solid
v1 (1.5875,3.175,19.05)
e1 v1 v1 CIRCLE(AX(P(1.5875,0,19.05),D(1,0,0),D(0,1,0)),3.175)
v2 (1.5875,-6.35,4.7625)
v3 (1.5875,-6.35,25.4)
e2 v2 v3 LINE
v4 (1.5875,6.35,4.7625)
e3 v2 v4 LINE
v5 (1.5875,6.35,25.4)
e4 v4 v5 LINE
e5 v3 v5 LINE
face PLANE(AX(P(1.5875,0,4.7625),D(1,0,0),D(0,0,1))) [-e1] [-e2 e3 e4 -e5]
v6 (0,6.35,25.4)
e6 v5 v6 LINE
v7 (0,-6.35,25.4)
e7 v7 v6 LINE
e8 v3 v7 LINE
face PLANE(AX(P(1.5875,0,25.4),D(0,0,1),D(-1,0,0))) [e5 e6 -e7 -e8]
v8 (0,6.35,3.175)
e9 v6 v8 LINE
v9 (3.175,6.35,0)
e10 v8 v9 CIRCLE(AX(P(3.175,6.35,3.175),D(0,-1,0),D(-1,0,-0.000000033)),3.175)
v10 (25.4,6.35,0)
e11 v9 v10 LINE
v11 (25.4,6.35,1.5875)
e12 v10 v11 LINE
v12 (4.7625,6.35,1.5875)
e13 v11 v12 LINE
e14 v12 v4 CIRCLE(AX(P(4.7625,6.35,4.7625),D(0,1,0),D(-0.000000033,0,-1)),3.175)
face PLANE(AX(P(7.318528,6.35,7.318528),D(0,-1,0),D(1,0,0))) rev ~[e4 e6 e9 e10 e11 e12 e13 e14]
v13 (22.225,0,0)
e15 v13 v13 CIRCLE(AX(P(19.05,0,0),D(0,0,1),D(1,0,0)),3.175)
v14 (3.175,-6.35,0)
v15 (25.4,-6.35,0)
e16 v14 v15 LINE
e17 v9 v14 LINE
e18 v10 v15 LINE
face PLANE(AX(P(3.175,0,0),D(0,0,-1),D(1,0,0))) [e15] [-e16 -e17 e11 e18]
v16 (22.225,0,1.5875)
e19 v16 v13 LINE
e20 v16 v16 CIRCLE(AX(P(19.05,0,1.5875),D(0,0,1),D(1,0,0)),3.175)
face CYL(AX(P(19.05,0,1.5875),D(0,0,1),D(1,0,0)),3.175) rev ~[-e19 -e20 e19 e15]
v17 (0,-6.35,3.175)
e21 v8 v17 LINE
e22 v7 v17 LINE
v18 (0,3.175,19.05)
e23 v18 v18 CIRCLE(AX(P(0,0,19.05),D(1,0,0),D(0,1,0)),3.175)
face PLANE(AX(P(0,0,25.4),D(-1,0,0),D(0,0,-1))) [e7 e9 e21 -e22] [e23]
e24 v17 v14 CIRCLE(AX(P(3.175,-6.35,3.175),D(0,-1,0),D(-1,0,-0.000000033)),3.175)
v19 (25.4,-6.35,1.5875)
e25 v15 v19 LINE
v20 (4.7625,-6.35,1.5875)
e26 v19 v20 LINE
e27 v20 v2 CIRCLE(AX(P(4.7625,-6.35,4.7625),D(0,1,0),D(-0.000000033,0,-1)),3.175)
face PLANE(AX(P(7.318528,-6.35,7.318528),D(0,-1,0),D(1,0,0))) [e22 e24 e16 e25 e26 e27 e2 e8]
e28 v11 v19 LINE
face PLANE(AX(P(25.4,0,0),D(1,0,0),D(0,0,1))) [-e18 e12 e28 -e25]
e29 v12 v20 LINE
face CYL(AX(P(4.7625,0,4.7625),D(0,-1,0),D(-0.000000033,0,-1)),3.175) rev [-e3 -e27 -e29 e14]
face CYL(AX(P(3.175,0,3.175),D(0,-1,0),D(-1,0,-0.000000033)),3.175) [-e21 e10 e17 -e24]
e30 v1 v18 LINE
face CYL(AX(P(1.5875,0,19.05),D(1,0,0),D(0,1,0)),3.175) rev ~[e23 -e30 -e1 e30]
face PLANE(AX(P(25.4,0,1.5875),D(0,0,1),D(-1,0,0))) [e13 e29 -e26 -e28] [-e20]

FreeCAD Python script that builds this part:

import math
import FreeCAD as App
import Part
import Sketcher
Q = App.Units.Quantity

doc = App.newDocument("Part")
body = doc.addObject("PartDesign::Body", "Body")

# Sketch on XZ plane
sketch1 = body.newObject("Sketcher::SketchObject", "Sketch")
sketch1.AttachmentSupport = (doc.getObject("XZ_Plane"), [""])
sketch1.MapMode = "FlatFace"
sketch1.addGeometry([
    Part.LineSegment(App.Vector(0, 25.4, 0), App.Vector(0, 3.2, 0)),  # 0
    Part.ArcOfCircle(Part.Circle(App.Vector(3.2, 3.2, 0), App.Vector(0, 0, 1), 3.2), math.radians(-180), math.radians(-90)),  # 1
    Part.LineSegment(App.Vector(3.2, 0, 0), App.Vector(25.4, 0, 0)),  # 2
    Part.LineSegment(App.Vector(25.4, 0, 0), App.Vector(25.4, 1.6, 0)),  # 3
    Part.LineSegment(App.Vector(25.4, 1.6, 0), App.Vector(4.8, 1.6, 0)),  # 4
    Part.ArcOfCircle(Part.Circle(App.Vector(4.8, 4.8, 0), App.Vector(0, 0, 1), 3.2), math.radians(-180), math.radians(-90)),  # 5
    Part.LineSegment(App.Vector(1.6, 4.8, 0), App.Vector(1.6, 25.4, 0)),  # 6
    Part.LineSegment(App.Vector(1.6, 25.4, 0), App.Vector(0, 25.4, 0)),  # 7
], False)
sketch1.addConstraint([
    Sketcher.Constraint("Tangent", 0, 2, 1, 1),
    Sketcher.Constraint("Tangent", 1, 2, 2, 1),
    Sketcher.Constraint("Coincident", 2, 2, 3, 1),
    Sketcher.Constraint("Coincident", 3, 2, 4, 1),
    Sketcher.Constraint("Tangent", 4, 2, 5, 2),
    Sketcher.Constraint("Tangent", 5, 1, 6, 1),
    Sketcher.Constraint("Coincident", 6, 2, 7, 1),
    Sketcher.Constraint("Coincident", 7, 2, 0, 1),
    Sketcher.Constraint("Vertical", 0),
    Sketcher.Constraint("Horizontal", 2),
    Sketcher.Constraint("Vertical", 3),
    Sketcher.Constraint("Horizontal", 4),
    Sketcher.Constraint("Vertical", 6),
    Sketcher.Constraint("Horizontal", 7),
    Sketcher.Constraint("Equal", 1, 5),
    Sketcher.Constraint("PointOnObject", 0, 2, -2),
    Sketcher.Constraint("PointOnObject", 1, 2, -1),
    Sketcher.Constraint("Equal", 2, 0),
    Sketcher.Constraint("Equal", 7, 3),
    Sketcher.Constraint("DistanceX", -1, 1, 2, 2, Q("1 in")),
    Sketcher.Constraint("Radius", 1, Q("0.125 in")),
    Sketcher.Constraint("DistanceX", 4, 2, 4, 1, Q("0.8125 in")),
])
pad1 = body.newObject("PartDesign::Pad", "Pad")
pad1.Profile = sketch1
pad1.Type = "TwoLengths"
pad1.Length = Q("0.25 in")
pad1.Length2 = Q("0.25 in")

# Sketch on YZ plane
sketch2 = body.newObject("Sketcher::SketchObject", "Sketch001")
sketch2.AttachmentSupport = (doc.getObject("YZ_Plane"), [""])
sketch2.MapMode = "FlatFace"
sketch2.AttachmentOffset = App.Placement(App.Vector(0, 0, 0.0625 * 25.4), App.Rotation())
sketch2.addGeometry(Part.Circle(App.Vector(0, 19.1, 0), App.Vector(0, 0, 1), 3.2), False)
sketch2.addConstraint([
    Sketcher.Constraint("PointOnObject", 0, 3, -2),
    Sketcher.Constraint("Diameter", 0, Q("0.25 in")),
    Sketcher.Constraint("DistanceY", -1, 1, 0, 3, Q("0.75 in")),
])
pocket1 = body.newObject("PartDesign::Pocket", "Pocket")
pocket1.Profile = sketch2
pocket1.Type = "ThroughAll"

# Sketch on XY plane
sketch3 = body.newObject("Sketcher::SketchObject", "Sketch002")
sketch3.AttachmentSupport = (doc.getObject("XY_Plane"), [""])
sketch3.MapMode = "FlatFace"
sketch3.AttachmentOffset = App.Placement(App.Vector(0, 0, 0.0625 * 25.4), App.Rotation())
sketch3.addGeometry(Part.Circle(App.Vector(19.1, 0, 0), App.Vector(0, 0, 1), 3.2), False)
sketch3.addConstraint([
    Sketcher.Constraint("PointOnObject", 0, 3, -1),
    Sketcher.Constraint("Diameter", 0, Q("0.25 in")),
    Sketcher.Constraint("DistanceX", -1, 1, 0, 3, Q("0.75 in")),
])
pocket2 = body.newObject("PartDesign::Pocket", "Pocket001")
pocket2.Profile = sketch3
pocket2.Type = "ThroughAll"

doc.recompute()
